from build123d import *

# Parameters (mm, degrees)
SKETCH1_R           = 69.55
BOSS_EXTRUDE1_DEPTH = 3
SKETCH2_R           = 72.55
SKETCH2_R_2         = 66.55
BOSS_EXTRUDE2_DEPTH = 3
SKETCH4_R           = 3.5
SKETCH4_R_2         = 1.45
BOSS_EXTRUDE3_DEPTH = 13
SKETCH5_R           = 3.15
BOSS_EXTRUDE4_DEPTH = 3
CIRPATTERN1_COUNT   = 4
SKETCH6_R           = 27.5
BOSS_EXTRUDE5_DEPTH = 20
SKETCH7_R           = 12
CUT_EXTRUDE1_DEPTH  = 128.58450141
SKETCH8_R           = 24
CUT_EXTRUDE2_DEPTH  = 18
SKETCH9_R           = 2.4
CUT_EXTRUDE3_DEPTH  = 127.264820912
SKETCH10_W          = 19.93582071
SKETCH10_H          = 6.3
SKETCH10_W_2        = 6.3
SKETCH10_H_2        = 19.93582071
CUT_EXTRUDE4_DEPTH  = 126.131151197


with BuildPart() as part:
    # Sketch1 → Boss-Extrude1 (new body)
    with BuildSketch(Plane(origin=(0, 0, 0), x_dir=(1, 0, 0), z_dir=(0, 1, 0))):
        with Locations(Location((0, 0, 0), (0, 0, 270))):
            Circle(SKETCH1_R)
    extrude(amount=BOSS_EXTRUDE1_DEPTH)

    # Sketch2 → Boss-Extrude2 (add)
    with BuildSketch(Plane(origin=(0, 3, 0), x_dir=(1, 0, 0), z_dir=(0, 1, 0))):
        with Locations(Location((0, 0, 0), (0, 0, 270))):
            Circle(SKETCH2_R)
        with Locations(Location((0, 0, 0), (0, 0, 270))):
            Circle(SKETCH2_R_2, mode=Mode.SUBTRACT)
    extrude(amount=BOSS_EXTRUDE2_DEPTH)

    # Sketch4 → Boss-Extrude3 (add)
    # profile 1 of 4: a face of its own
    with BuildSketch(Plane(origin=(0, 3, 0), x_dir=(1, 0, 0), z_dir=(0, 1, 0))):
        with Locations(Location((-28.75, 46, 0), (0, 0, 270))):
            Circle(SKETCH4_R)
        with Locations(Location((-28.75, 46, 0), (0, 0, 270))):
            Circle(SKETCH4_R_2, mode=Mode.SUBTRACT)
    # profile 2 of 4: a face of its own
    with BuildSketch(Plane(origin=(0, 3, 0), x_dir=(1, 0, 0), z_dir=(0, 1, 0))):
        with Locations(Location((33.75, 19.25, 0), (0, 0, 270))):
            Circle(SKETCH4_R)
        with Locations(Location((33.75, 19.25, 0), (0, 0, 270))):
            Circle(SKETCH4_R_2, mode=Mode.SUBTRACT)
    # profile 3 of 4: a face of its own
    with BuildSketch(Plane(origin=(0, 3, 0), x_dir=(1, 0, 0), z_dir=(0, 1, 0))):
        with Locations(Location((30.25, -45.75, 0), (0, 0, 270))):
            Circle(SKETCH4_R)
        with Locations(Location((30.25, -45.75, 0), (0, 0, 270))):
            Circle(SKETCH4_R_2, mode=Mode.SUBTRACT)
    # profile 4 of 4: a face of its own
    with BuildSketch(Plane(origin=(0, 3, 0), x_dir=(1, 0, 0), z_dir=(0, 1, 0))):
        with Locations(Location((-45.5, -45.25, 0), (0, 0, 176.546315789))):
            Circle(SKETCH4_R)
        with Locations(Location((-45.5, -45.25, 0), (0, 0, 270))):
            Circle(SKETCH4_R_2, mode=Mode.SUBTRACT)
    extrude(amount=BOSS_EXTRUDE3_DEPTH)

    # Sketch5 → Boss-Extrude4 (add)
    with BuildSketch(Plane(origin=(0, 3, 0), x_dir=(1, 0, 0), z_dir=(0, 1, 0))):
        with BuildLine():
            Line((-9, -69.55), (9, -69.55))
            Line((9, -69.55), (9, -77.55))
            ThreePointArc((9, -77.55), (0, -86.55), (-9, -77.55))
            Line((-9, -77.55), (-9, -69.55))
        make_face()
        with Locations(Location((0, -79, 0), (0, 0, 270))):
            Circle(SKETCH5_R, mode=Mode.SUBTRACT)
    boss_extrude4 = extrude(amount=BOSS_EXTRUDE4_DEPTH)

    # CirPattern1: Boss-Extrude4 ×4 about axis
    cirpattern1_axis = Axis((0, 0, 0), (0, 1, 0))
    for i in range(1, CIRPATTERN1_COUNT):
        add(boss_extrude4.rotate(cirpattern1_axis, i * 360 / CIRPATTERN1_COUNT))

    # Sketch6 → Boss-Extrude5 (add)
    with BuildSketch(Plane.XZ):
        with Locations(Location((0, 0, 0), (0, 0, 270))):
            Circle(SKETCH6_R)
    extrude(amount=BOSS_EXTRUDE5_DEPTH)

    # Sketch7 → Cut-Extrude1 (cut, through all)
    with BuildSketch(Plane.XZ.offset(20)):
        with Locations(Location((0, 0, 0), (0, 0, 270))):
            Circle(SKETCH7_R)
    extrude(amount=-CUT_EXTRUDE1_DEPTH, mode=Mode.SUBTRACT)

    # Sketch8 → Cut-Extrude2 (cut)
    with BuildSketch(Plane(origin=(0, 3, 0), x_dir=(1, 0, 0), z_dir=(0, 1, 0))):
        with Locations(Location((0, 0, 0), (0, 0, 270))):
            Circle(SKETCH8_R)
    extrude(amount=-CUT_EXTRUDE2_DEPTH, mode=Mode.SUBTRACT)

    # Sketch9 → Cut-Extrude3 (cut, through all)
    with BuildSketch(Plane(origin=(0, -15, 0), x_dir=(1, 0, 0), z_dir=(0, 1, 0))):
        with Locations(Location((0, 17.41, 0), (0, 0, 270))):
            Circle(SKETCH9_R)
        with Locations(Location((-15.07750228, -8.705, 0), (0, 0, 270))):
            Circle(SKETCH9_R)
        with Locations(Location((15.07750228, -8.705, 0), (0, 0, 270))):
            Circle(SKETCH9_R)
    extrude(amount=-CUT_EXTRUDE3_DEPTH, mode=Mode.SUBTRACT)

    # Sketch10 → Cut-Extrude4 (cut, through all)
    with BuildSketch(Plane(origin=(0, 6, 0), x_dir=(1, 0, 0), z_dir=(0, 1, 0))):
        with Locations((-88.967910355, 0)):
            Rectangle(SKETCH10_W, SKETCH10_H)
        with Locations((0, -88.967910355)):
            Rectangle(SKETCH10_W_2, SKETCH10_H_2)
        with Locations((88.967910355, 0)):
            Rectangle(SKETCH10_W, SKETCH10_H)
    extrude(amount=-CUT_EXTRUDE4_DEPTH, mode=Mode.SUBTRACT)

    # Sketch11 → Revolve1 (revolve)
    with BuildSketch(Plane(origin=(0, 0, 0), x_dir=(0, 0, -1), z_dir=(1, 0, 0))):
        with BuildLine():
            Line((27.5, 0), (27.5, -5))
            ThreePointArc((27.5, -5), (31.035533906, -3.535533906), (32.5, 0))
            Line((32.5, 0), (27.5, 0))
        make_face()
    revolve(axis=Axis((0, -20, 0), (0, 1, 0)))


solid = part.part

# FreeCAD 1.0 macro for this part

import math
import FreeCAD as App
import Part
import Sketcher
Q = App.Units.Quantity


def add_polygon(sketch, points):
    """Adds a closed chain of lines whose ends are joined by coincident constraints."""
    first, n = sketch.GeometryCount, len(points)
    for a, b in zip(points, points[1:] + points[:1]):
        sketch.addGeometry(Part.LineSegment(App.Vector(*a, 0), App.Vector(*b, 0)), False)
    for i in range(n):
        sketch.addConstraint(Sketcher.Constraint("Coincident", first + i, 2, first + (i + 1) % n, 1))

doc = App.newDocument("Part")
body = doc.addObject("PartDesign::Body", "Body")

sketch1 = body.newObject("Sketcher::SketchObject", "Sketch")
sketch1.AttachmentSupport = (doc.getObject("XZ_Plane"), [""])
sketch1.MapMode = "FlatFace"
sketch1.addGeometry(Part.Circle(App.Vector(0, 0, 0), App.Vector(0, 0, 1), 69.55), False)
sketch1.addConstraint([
    Sketcher.Constraint("Coincident", 0, 3, -1, 1),
    Sketcher.Constraint("Diameter", 0, Q("139.1 mm")),
])
pad1 = body.newObject("PartDesign::Pad", "Pad")
pad1.Profile = sketch1
pad1.Length = 3
pad1.Reversed = True

sketch2 = body.newObject("Sketcher::SketchObject", "Sketch001")
sketch2.AttachmentSupport = (doc.getObject("XZ_Plane"), [""])
sketch2.MapMode = "FlatFace"
sketch2.AttachmentOffset = App.Placement(App.Vector(0, 0, -3), App.Rotation())
sketch2.addGeometry([
    Part.Circle(App.Vector(0, 0, 0), App.Vector(0, 0, 1), 72.55),
    Part.Circle(App.Vector(0, 0, 0), App.Vector(0, 0, 1), 66.55),
], False)
sketch2.addConstraint([
    Sketcher.Constraint("Coincident", 0, 3, -1, 1),
    Sketcher.Constraint("Coincident", 1, 3, -1, 1),
    Sketcher.Constraint("Diameter", 0, Q("145.1 mm")),
    Sketcher.Constraint("Diameter", 1, Q("133.1 mm")),
])
pad2 = body.newObject("PartDesign::Pad", "Pad001")
pad2.Profile = sketch2
pad2.Length = 3
pad2.Reversed = True

sketch3 = body.newObject("Sketcher::SketchObject", "Sketch002")
sketch3.AttachmentSupport = (doc.getObject("XZ_Plane"), [""])
sketch3.MapMode = "FlatFace"
sketch3.AttachmentOffset = App.Placement(App.Vector(0, 0, -3), App.Rotation())
sketch3.addGeometry([
    Part.Circle(App.Vector(-28.75, -46, 0), App.Vector(0, 0, 1), 3.5),
    Part.Circle(App.Vector(-28.75, -46, 0), App.Vector(0, 0, 1), 1.45),
    Part.Circle(App.Vector(33.75, -19.25, 0), App.Vector(0, 0, 1), 3.5),
    Part.Circle(App.Vector(33.75, -19.25, 0), App.Vector(0, 0, 1), 1.45),
    Part.Circle(App.Vector(30.25, 45.75, 0), App.Vector(0, 0, 1), 3.5),
    Part.Circle(App.Vector(30.25, 45.75, 0), App.Vector(0, 0, 1), 1.45),
    Part.Circle(App.Vector(-45.5, 45.25, 0), App.Vector(0, 0, 1), 3.5),
    Part.Circle(App.Vector(-45.5, 45.25, 0), App.Vector(0, 0, 1), 1.45),
], False)
sketch3.addConstraint([
    Sketcher.Constraint("Coincident", 1, 3, 0, 3),
    Sketcher.Constraint("Coincident", 3, 3, 2, 3),
    Sketcher.Constraint("Coincident", 5, 3, 4, 3),
    Sketcher.Constraint("Coincident", 7, 3, 6, 3),
    Sketcher.Constraint("Equal", 0, 2),
    Sketcher.Constraint("Equal", 1, 3),
    Sketcher.Constraint("Equal", 2, 4),
    Sketcher.Constraint("Equal", 3, 5),
    Sketcher.Constraint("Equal", 4, 6),
    Sketcher.Constraint("Equal", 5, 7),
    Sketcher.Constraint("Diameter", 0, Q("7 mm")),
    Sketcher.Constraint("Diameter", 1, Q("2.9 mm")),
    Sketcher.Constraint("DistanceY", 0, 3, -1, 1, Q("46 mm")),
    Sketcher.Constraint("DistanceY", 2, 3, 4, 3, Q("65 mm")),
    Sketcher.Constraint("DistanceX", 0, 3, 4, 3, Q("59 mm")),
    Sketcher.Constraint("DistanceX", 6, 3, -1, 1, Q("45.5 mm")),
    Sketcher.Constraint("DistanceX", 0, 3, 2, 3, Q("62.5 mm")),
    Sketcher.Constraint("DistanceY", 6, 3, 4, 3, Q("0.5 mm")),
    Sketcher.Constraint("DistanceX", 0, 3, -1, 1, Q("28.75 mm")),
    Sketcher.Constraint("DistanceY", 2, 3, -1, 1, Q("19.25 mm")),
])
pad3 = body.newObject("PartDesign::Pad", "Pad002")
pad3.Profile = sketch3
pad3.Length = 13
pad3.Reversed = True

sketch4 = body.newObject("Sketcher::SketchObject", "Sketch003")
sketch4.AttachmentSupport = (doc.getObject("XZ_Plane"), [""])
sketch4.MapMode = "FlatFace"
sketch4.AttachmentOffset = App.Placement(App.Vector(0, 0, -3), App.Rotation())
sketch4.addGeometry([
    Part.LineSegment(App.Vector(9, 69.55, 0), App.Vector(-9, 69.55, 0)),
    Part.LineSegment(App.Vector(-9, 69.55, 0), App.Vector(-9, 77.55, 0)),
    Part.ArcOfCircle(Part.Circle(App.Vector(0, 77.55, 0), App.Vector(0, 0, 1), 9), math.radians(0), math.radians(180)),
    Part.LineSegment(App.Vector(9, 77.55, 0), App.Vector(9, 69.55, 0)),
    Part.Circle(App.Vector(0, 79, 0), App.Vector(0, 0, 1), 3.15),
], False)
sketch4.addConstraint([
    Sketcher.Constraint("Coincident", 0, 2, 1, 1),
    Sketcher.Constraint("Tangent", 1, 2, 2, 2),
    Sketcher.Constraint("Tangent", 2, 1, 3, 1),
    Sketcher.Constraint("Coincident", 3, 2, 0, 1),
    Sketcher.Constraint("Horizontal", 0),
    Sketcher.Constraint("Vertical", 1),
    Sketcher.Constraint("Vertical", 3),
    Sketcher.Constraint("PointOnObject", 2, 3, -2),
    Sketcher.Constraint("PointOnObject", 4, 3, -2),
    Sketcher.Constraint("Radius", 2, Q("9 mm")),
    Sketcher.Constraint("Diameter", 4, Q("6.3 mm")),
    Sketcher.Constraint("DistanceY", 1, 1, 1, 2, Q("8 mm")),
    Sketcher.Constraint("DistanceY", -1, 1, 4, 3, Q("79 mm")),
    Sketcher.Constraint("DistanceY", -1, 1, 2, 3, Q("77.55 mm")),
])
pad4 = body.newObject("PartDesign::Pad", "Pad003")
pad4.Profile = sketch4
pad4.Length = 3
pad4.Reversed = True
doc.recompute()

polarpattern = body.newObject("PartDesign::PolarPattern", "PolarPattern")
polarpattern.Originals = [pad4]
polarpattern.Axis = (doc.getObject("Y_Axis"), [""])
polarpattern.Angle = 360
polarpattern.Occurrences = 4
body.Tip = polarpattern

sketch5 = body.newObject("Sketcher::SketchObject", "Sketch004")
sketch5.AttachmentSupport = (doc.getObject("XZ_Plane"), [""])
sketch5.MapMode = "FlatFace"
sketch5.addGeometry(Part.Circle(App.Vector(0, 0, 0), App.Vector(0, 0, 1), 27.5), False)
sketch5.addConstraint([
    Sketcher.Constraint("Coincident", 0, 3, -1, 1),
    Sketcher.Constraint("Diameter", 0, Q("55 mm")),
])
pad5 = body.newObject("PartDesign::Pad", "Pad004")
pad5.Profile = sketch5
pad5.Length = 20

sketch6 = body.newObject("Sketcher::SketchObject", "Sketch005")
sketch6.AttachmentSupport = (doc.getObject("XZ_Plane"), [""])
sketch6.MapMode = "FlatFace"
sketch6.AttachmentOffset = App.Placement(App.Vector(0, 0, 20), App.Rotation())
sketch6.addGeometry(Part.Circle(App.Vector(0, 0, 0), App.Vector(0, 0, 1), 12), False)
sketch6.addConstraint([
    Sketcher.Constraint("Coincident", 0, 3, -1, 1),
    Sketcher.Constraint("Diameter", 0, Q("24 mm")),
])
pocket1 = body.newObject("PartDesign::Pocket", "Pocket")
pocket1.Profile = sketch6
pocket1.Type = "ThroughAll"

sketch7 = body.newObject("Sketcher::SketchObject", "Sketch006")
sketch7.AttachmentSupport = (doc.getObject("XZ_Plane"), [""])
sketch7.MapMode = "FlatFace"
sketch7.AttachmentOffset = App.Placement(App.Vector(0, 0, -3), App.Rotation())
sketch7.addGeometry(Part.Circle(App.Vector(0, 0, 0), App.Vector(0, 0, 1), 24), False)
sketch7.addConstraint([
    Sketcher.Constraint("Coincident", 0, 3, -1, 1),
    Sketcher.Constraint("Diameter", 0, Q("48 mm")),
])
pocket2 = body.newObject("PartDesign::Pocket", "Pocket001")
pocket2.Profile = sketch7
pocket2.Length = 18
pocket2.Reversed = True

sketch8 = body.newObject("Sketcher::SketchObject", "Sketch007")
sketch8.AttachmentSupport = (doc.getObject("XZ_Plane"), [""])
sketch8.MapMode = "FlatFace"
sketch8.AttachmentOffset = App.Placement(App.Vector(0, 0, 15), App.Rotation())
sketch8.addGeometry([
    Part.Circle(App.Vector(0, -17.41, 0), App.Vector(0, 0, 1), 2.4),
    Part.Circle(App.Vector(-15.077502, 8.705, 0), App.Vector(0, 0, 1), 2.4),
    Part.Circle(App.Vector(15.077502, 8.705, 0), App.Vector(0, 0, 1), 2.4),
], False)
sketch8.addConstraint([
    Sketcher.Constraint("Equal", 0, 1),
    Sketcher.Constraint("Equal", 1, 2),
    Sketcher.Constraint("Symmetric", 1, 3, 2, 3, -2),
    Sketcher.Constraint("PointOnObject", 0, 3, -2),
    Sketcher.Constraint("Diameter", 0, Q("4.8 mm")),
    Sketcher.Constraint("DistanceY", 0, 3, -1, 1, Q("17.41 mm")),
    Sketcher.Constraint("DistanceY", -1, 1, 1, 3, Q("8.705 mm")),
    Sketcher.Constraint("DistanceX", 1, 3, -1, 1, Q("15.077502 mm")),
])
pocket3 = body.newObject("PartDesign::Pocket", "Pocket002")
pocket3.Profile = sketch8
pocket3.Type = "ThroughAll"
pocket3.Reversed = True

sketch9 = body.newObject("Sketcher::SketchObject", "Sketch008")
sketch9.AttachmentSupport = (doc.getObject("XZ_Plane"), [""])
sketch9.MapMode = "FlatFace"
sketch9.AttachmentOffset = App.Placement(App.Vector(0, 0, -6), App.Rotation())
add_polygon(sketch9, [(-98.935821, -3.15), (-98.935821, 3.15), (-79, 3.15), (-79, -3.15)])
add_polygon(sketch9, [(-3.15, 79), (-3.15, 98.935821), (3.15, 98.935821), (3.15, 79)])
add_polygon(sketch9, [(79, -3.15), (79, 3.15), (98.935821, 3.15), (98.935821, -3.15)])
sketch9.addConstraint([
    Sketcher.Constraint("Vertical", 0),
    Sketcher.Constraint("Horizontal", 1),
    Sketcher.Constraint("Vertical", 2),
    Sketcher.Constraint("Horizontal", 3),
    Sketcher.Constraint("Vertical", 4),
    Sketcher.Constraint("Horizontal", 5),
    Sketcher.Constraint("Vertical", 6),
    Sketcher.Constraint("Horizontal", 7),
    Sketcher.Constraint("Vertical", 8),
    Sketcher.Constraint("Horizontal", 9),
    Sketcher.Constraint("Vertical", 10),
    Sketcher.Constraint("Horizontal", 11),
    Sketcher.Constraint("Symmetric", 2, 2, 8, 2, -1, 1),
    Sketcher.Constraint("Symmetric", 0, 2, 10, 2, -1, 1),
    Sketcher.Constraint("Horizontal", 1, 2, 8, 2),
    Sketcher.Constraint("Equal", 7, 0),
    Sketcher.Constraint("Equal", 11, 4),
    Sketcher.Constraint("DistanceX", 5, 1, 5, 2, Q("6.3 mm")),
    Sketcher.Constraint("DistanceX", 1, 2, -1, 1, Q("79 mm")),
    Sketcher.Constraint("DistanceY", -1, 1, 6, 2, Q("79 mm")),
    Sketcher.Constraint("DistanceX", 4, 2, -1, 1, Q("3.15 mm")),
    Sketcher.Constraint("DistanceX", 1, 1, 1, 2, Q("19.935821 mm")),
])
pocket4 = body.newObject("PartDesign::Pocket", "Pocket003")
pocket4.Profile = sketch9
pocket4.Type = "ThroughAll"
pocket4.Reversed = True

sketch10 = body.newObject("Sketcher::SketchObject", "Sketch009")
sketch10.AttachmentSupport = (doc.getObject("YZ_Plane"), [""])
sketch10.MapMode = "FlatFace"
sketch10.addGeometry([
    Part.LineSegment(App.Vector(0, -27.5, 0), App.Vector(-5, -27.5, 0)),
    Part.ArcOfCircle(Part.Circle(App.Vector(0, -27.5, 0), App.Vector(0, 0, 1), 5), math.radians(180), math.radians(270)),
    Part.LineSegment(App.Vector(0, -32.5, 0), App.Vector(0, -27.5, 0)),
], False)
sketch10.addConstraint([
    Sketcher.Constraint("Coincident", 0, 2, 1, 1),
    Sketcher.Constraint("Coincident", 1, 2, 2, 1),
    Sketcher.Constraint("Coincident", 2, 2, 0, 1),
    Sketcher.Constraint("Horizontal", 0),
    Sketcher.Constraint("Vertical", 2),
    Sketcher.Constraint("Coincident", 2, 2, 1, 3),
    Sketcher.Constraint("PointOnObject", 1, 3, -2),
    Sketcher.Constraint("Radius", 1, Q("5 mm")),
    Sketcher.Constraint("DistanceY", 1, 3, -1, 1, Q("27.5 mm")),
])
revolution = body.newObject("PartDesign::Revolution", "Revolution")
revolution.Profile = sketch10
revolution.ReferenceAxis = (sketch10, ["H_Axis"])
revolution.Angle = 360

doc.recompute()
